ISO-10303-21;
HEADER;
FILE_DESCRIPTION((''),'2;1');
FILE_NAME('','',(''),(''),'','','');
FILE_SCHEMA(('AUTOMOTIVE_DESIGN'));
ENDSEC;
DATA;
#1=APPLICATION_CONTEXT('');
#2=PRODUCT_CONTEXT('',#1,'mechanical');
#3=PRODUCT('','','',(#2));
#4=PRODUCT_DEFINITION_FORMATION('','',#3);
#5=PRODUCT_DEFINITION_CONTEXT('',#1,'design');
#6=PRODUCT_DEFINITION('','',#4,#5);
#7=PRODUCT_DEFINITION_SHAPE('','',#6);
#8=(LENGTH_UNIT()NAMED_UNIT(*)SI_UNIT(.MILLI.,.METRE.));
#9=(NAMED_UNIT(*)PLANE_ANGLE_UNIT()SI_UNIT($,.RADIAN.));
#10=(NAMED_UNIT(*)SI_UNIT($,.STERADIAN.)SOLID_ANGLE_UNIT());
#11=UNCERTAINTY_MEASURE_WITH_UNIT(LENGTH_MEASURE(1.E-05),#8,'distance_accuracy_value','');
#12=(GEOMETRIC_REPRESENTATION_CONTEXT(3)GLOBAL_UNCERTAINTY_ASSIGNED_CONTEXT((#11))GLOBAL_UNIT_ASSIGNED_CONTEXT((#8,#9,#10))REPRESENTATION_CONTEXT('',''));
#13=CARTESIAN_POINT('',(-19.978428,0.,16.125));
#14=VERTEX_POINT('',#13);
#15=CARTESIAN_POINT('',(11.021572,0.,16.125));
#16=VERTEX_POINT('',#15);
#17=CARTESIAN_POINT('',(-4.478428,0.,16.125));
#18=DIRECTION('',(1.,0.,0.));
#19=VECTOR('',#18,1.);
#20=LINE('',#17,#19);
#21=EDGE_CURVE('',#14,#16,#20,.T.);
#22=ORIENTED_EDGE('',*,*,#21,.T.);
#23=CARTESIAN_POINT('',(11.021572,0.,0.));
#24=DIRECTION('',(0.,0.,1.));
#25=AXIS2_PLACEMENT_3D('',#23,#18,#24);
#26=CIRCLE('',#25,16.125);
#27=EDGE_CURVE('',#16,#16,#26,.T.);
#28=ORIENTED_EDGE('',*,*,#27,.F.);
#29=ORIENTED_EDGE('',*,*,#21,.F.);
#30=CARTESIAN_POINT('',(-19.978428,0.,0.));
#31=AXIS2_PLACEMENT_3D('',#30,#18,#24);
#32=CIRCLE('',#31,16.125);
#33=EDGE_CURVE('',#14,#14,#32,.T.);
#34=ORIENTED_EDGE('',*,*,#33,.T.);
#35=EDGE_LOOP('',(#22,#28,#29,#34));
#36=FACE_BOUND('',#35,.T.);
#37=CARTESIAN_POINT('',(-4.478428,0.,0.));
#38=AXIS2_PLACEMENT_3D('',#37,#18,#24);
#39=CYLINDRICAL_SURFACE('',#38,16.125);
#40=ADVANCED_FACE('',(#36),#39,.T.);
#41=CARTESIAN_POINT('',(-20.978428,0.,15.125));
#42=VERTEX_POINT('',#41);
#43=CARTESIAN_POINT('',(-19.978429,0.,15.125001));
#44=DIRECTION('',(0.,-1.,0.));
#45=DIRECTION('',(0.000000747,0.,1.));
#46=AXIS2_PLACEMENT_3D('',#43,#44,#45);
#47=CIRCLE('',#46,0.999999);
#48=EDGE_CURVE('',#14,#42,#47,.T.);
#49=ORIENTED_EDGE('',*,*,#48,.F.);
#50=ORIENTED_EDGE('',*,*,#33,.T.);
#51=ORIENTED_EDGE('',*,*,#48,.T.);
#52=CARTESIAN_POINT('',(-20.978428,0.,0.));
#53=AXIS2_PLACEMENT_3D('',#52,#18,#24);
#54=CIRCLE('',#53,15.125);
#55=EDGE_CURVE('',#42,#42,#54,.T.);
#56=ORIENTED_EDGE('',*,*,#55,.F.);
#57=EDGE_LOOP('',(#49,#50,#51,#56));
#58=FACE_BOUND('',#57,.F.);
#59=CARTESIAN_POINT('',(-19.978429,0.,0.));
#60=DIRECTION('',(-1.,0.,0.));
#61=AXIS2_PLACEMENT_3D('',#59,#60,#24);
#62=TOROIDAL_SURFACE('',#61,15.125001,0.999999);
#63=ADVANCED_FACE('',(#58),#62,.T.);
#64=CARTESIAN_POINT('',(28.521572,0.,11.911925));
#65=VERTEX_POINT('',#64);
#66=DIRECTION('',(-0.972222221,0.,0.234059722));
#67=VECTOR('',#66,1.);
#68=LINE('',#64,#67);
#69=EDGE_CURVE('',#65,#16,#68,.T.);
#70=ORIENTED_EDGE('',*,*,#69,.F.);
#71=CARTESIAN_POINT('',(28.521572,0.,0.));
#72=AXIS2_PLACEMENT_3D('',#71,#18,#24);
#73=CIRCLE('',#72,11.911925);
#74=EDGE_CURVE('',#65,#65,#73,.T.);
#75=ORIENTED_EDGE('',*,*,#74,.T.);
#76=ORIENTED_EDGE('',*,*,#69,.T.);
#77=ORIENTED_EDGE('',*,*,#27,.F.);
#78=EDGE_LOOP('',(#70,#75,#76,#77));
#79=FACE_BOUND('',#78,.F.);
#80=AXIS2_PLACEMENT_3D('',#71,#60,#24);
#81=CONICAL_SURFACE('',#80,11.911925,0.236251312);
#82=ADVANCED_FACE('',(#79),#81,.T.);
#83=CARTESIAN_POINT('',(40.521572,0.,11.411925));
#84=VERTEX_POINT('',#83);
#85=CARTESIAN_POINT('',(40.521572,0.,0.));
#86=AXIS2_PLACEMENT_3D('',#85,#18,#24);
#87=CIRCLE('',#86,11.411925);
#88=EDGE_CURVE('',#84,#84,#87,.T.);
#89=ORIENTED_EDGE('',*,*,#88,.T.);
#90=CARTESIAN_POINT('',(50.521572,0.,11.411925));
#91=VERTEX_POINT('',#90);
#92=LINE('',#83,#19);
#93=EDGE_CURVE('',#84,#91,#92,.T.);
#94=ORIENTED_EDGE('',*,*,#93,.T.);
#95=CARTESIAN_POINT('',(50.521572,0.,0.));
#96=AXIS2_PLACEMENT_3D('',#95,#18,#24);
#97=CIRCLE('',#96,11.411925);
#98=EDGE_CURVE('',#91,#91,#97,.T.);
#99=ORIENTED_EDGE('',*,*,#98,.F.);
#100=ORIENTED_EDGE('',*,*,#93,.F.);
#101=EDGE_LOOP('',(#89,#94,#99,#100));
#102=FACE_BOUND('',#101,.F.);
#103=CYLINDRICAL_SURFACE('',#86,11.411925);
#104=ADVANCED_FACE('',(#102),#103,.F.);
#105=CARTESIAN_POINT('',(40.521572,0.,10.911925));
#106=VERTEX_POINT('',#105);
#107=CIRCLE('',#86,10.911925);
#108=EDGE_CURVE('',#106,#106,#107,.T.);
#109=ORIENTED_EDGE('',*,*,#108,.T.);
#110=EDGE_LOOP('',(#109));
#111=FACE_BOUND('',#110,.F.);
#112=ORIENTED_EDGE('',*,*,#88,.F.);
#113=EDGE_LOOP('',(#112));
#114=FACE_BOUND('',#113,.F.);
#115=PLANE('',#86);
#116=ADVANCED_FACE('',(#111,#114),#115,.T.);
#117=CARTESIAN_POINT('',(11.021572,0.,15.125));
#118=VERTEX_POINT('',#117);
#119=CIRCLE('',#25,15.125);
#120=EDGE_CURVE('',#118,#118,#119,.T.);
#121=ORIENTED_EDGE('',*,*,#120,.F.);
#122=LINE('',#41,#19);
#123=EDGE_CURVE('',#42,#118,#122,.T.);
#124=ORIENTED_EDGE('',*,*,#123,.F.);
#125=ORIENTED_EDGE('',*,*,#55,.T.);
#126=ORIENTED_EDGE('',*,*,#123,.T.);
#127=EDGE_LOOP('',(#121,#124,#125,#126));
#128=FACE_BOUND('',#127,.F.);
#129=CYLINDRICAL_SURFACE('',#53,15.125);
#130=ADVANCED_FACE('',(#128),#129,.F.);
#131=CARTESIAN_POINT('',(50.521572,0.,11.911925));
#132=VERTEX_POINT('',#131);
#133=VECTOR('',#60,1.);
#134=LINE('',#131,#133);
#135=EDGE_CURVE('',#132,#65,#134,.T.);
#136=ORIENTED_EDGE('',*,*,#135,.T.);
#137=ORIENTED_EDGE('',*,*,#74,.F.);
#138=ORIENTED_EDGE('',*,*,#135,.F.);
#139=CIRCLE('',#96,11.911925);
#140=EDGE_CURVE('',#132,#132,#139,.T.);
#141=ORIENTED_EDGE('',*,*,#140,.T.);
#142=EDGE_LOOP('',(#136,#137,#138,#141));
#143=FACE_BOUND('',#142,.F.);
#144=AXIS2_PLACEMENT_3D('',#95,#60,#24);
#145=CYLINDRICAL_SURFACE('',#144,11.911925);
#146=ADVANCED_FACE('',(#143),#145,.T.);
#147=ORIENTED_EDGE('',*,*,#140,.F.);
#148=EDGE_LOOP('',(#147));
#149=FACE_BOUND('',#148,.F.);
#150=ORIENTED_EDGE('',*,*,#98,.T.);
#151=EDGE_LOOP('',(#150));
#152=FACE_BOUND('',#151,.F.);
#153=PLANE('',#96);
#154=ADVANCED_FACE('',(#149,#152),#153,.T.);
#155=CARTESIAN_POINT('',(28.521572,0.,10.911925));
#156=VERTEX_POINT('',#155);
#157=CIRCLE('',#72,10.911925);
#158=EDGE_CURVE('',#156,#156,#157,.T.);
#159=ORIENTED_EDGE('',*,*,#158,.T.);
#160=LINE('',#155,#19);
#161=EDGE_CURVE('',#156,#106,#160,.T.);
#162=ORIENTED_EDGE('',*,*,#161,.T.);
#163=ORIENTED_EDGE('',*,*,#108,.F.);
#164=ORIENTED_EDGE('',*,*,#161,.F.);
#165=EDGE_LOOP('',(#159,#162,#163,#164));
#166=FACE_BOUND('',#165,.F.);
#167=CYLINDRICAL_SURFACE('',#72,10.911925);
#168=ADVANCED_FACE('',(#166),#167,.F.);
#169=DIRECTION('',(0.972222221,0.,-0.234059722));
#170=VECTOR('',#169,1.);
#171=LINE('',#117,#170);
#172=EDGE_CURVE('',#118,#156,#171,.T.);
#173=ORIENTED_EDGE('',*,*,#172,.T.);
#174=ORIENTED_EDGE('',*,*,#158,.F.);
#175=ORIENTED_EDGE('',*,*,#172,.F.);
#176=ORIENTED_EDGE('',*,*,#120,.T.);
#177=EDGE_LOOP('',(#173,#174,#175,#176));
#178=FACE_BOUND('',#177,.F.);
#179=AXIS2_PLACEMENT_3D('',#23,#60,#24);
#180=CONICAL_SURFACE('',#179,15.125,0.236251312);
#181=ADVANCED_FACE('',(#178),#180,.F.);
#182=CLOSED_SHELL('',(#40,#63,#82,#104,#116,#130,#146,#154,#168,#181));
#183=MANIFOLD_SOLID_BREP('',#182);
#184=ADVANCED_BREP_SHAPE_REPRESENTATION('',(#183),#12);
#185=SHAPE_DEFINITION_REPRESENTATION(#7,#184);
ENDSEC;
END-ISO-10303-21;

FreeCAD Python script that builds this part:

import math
import FreeCAD as App
import Part
import Sketcher
from FreeCAD import Vector

doc = App.newDocument("Part")
body = doc.addObject("PartDesign::Body", "Body")

# Sketch on XZ plane
sketch1 = body.newObject("Sketcher::SketchObject", "Sketch")
sketch1.AttachmentSupport = (doc.getObject("XZ_Plane"), [""])
sketch1.MapMode = "FlatFace"
sketch1.addGeometry([
    Part.ArcOfCircle(Part.Circle(Vector(-19.978429, 15.125001, 0), Vector(0, 0, 1), 0.999999), math.radians(89.999957), math.radians(180.000043)),  # 0
    Part.LineSegment(Vector(-20.978428, 15.125, 0), Vector(11.021572, 15.125, 0)),  # 1
    Part.LineSegment(Vector(11.021572, 15.125, 0), Vector(28.521572, 10.911925, 0)),  # 2
    Part.LineSegment(Vector(28.521572, 10.911925, 0), Vector(40.521572, 10.911925, 0)),  # 3
    Part.LineSegment(Vector(40.521572, 10.911925, 0), Vector(40.521572, 11.411925, 0)),  # 4
    Part.LineSegment(Vector(40.521572, 11.411925, 0), Vector(50.521572, 11.411925, 0)),  # 5
    Part.LineSegment(Vector(50.521572, 11.411925, 0), Vector(50.521572, 11.911925, 0)),  # 6
    Part.LineSegment(Vector(50.521572, 11.911925, 0), Vector(28.521572, 11.911925, 0)),  # 7
    Part.LineSegment(Vector(28.521572, 11.911925, 0), Vector(11.021572, 16.125, 0)),  # 8
    Part.LineSegment(Vector(11.021572, 16.125, 0), Vector(-19.978428, 16.125, 0)),  # 9
], False)
sketch1.addConstraint([
    Sketcher.Constraint("Coincident", 0, 2, 1, 1),
    Sketcher.Constraint("Coincident", 1, 2, 2, 1),
    Sketcher.Constraint("Coincident", 2, 2, 3, 1),
    Sketcher.Constraint("Coincident", 3, 2, 4, 1),
    Sketcher.Constraint("Coincident", 4, 2, 5, 1),
    Sketcher.Constraint("Coincident", 5, 2, 6, 1),
    Sketcher.Constraint("Coincident", 6, 2, 7, 1),
    Sketcher.Constraint("Coincident", 7, 2, 8, 1),
    Sketcher.Constraint("Coincident", 8, 2, 9, 1),
    Sketcher.Constraint("Tangent", 9, 2, 0, 1),
    Sketcher.Constraint("Horizontal", 1),
    Sketcher.Constraint("Horizontal", 3),
    Sketcher.Constraint("Vertical", 4),
    Sketcher.Constraint("Horizontal", 5),
    Sketcher.Constraint("Vertical", 6),
    Sketcher.Constraint("Horizontal", 7),
    Sketcher.Constraint("Horizontal", 9),
    Sketcher.Constraint("Parallel", 2, 8),
    Sketcher.Constraint("Vertical", 2, 2, 7, 2),
    Sketcher.Constraint("Vertical", 1, 2, 8, 2),
    Sketcher.Constraint("Equal", 4, 6),
    Sketcher.Constraint("Radius", 0, 0.999999),
    Sketcher.Constraint("DistanceX", 1, 1, 1, 2, 32.0),
    Sketcher.Constraint("DistanceX", 3, 1, 3, 2, 12.0),
    Sketcher.Constraint("DistanceX", 5, 1, 5, 2, 10.0),
    Sketcher.Constraint("Distance", 2, 18.0),
    Sketcher.Constraint("DistanceY", 4, 1, 4, 2, 0.5),
    Sketcher.Constraint("DistanceX", 1, 2, 2, 2, 17.5),
    Sketcher.Constraint("DistanceY", -1, 1, 0, 3, 15.125001),
    Sketcher.Constraint("DistanceX", 0, 3, -1, 1, 19.978429),
])
revolution = body.newObject("PartDesign::Revolution", "Revolution")
revolution.Profile = sketch1
revolution.ReferenceAxis = (sketch1, ["H_Axis"])
revolution.Angle = 360

doc.recompute()
